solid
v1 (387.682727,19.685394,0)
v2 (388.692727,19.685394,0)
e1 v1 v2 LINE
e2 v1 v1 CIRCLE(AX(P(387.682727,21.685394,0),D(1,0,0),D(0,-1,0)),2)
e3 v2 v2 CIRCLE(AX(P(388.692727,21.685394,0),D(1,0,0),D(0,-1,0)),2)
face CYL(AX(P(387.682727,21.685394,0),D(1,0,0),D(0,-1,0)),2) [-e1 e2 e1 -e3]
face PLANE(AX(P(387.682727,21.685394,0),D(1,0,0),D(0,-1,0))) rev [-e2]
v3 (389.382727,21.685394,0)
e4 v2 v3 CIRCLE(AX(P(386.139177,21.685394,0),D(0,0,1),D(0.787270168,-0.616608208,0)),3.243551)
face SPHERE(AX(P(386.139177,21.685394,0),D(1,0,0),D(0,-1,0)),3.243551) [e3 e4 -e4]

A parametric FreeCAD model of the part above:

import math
import FreeCAD as App
import Part
import Sketcher
Q = App.Units.Quantity

doc = App.newDocument("Part")
body = doc.addObject("PartDesign::Body", "Body")

sketch1 = body.newObject("Sketcher::SketchObject", "Sketch")
sketch1.AttachmentSupport = (doc.getObject("XY_Plane"), [""])
sketch1.MapMode = "FlatFace"
sketch1.addGeometry(Part.LineSegment(App.Vector(387.682727, 21.685394, 0), App.Vector(389.382727, 21.685394, 0)), False)
sketch1.addGeometry(Part.ArcOfCircle(Part.Circle(App.Vector(386.139177, 21.685394, 0), App.Vector(0, 0, 1), 3.243551), math.radians(0), math.radians(38.068869)), False)
sketch1.addGeometry(Part.LineSegment(App.Vector(388.692727, 23.685394, 0), App.Vector(387.682727, 23.685394, 0)), False)
sketch1.addGeometry(Part.LineSegment(App.Vector(387.682727, 23.685394, 0), App.Vector(387.682727, 21.685394, 0)), False)
sketch1.addGeometry(Part.LineSegment(App.Vector(386.139177, 21.685394, 0), App.Vector(389.382727, 21.685394, 0)), True)
sketch1.addConstraint(Sketcher.Constraint("Coincident", 0, 2, 1, 1))
sketch1.addConstraint(Sketcher.Constraint("Coincident", 1, 2, 2, 1))
sketch1.addConstraint(Sketcher.Constraint("Coincident", 2, 2, 3, 1))
sketch1.addConstraint(Sketcher.Constraint("Coincident", 3, 2, 0, 1))
sketch1.addConstraint(Sketcher.Constraint("Horizontal", 0))
sketch1.addConstraint(Sketcher.Constraint("Horizontal", 2))
sketch1.addConstraint(Sketcher.Constraint("Vertical", 3))
sketch1.addConstraint(Sketcher.Constraint("Horizontal", 4))
sketch1.addConstraint(Sketcher.Constraint("Coincident", 4, 1, 1, 3))
sketch1.addConstraint(Sketcher.Constraint("Coincident", 4, 2, 0, 2))
sketch1.addConstraint(Sketcher.Constraint("DistanceY", 3, 2, 3, 1, Q("2 mm")))
sketch1.addConstraint(Sketcher.Constraint("DistanceX", 0, 1, 0, 2, Q("1.7 mm")))
sketch1.addConstraint(Sketcher.Constraint("DistanceX", 2, 2, 2, 1, Q("1.01 mm")))
sketch1.addConstraint(Sketcher.Constraint("DistanceX", -1, 1, 1, 3, Q("386.139177 mm")))
sketch1.addConstraint(Sketcher.Constraint("DistanceY", -1, 1, 1, 3, Q("21.685394 mm")))
revolution = body.newObject("PartDesign::Revolution", "Revolution")
revolution.Profile = sketch1
revolution.ReferenceAxis = (sketch1, ["Axis0"])
revolution.Angle = 360

doc.recompute()
